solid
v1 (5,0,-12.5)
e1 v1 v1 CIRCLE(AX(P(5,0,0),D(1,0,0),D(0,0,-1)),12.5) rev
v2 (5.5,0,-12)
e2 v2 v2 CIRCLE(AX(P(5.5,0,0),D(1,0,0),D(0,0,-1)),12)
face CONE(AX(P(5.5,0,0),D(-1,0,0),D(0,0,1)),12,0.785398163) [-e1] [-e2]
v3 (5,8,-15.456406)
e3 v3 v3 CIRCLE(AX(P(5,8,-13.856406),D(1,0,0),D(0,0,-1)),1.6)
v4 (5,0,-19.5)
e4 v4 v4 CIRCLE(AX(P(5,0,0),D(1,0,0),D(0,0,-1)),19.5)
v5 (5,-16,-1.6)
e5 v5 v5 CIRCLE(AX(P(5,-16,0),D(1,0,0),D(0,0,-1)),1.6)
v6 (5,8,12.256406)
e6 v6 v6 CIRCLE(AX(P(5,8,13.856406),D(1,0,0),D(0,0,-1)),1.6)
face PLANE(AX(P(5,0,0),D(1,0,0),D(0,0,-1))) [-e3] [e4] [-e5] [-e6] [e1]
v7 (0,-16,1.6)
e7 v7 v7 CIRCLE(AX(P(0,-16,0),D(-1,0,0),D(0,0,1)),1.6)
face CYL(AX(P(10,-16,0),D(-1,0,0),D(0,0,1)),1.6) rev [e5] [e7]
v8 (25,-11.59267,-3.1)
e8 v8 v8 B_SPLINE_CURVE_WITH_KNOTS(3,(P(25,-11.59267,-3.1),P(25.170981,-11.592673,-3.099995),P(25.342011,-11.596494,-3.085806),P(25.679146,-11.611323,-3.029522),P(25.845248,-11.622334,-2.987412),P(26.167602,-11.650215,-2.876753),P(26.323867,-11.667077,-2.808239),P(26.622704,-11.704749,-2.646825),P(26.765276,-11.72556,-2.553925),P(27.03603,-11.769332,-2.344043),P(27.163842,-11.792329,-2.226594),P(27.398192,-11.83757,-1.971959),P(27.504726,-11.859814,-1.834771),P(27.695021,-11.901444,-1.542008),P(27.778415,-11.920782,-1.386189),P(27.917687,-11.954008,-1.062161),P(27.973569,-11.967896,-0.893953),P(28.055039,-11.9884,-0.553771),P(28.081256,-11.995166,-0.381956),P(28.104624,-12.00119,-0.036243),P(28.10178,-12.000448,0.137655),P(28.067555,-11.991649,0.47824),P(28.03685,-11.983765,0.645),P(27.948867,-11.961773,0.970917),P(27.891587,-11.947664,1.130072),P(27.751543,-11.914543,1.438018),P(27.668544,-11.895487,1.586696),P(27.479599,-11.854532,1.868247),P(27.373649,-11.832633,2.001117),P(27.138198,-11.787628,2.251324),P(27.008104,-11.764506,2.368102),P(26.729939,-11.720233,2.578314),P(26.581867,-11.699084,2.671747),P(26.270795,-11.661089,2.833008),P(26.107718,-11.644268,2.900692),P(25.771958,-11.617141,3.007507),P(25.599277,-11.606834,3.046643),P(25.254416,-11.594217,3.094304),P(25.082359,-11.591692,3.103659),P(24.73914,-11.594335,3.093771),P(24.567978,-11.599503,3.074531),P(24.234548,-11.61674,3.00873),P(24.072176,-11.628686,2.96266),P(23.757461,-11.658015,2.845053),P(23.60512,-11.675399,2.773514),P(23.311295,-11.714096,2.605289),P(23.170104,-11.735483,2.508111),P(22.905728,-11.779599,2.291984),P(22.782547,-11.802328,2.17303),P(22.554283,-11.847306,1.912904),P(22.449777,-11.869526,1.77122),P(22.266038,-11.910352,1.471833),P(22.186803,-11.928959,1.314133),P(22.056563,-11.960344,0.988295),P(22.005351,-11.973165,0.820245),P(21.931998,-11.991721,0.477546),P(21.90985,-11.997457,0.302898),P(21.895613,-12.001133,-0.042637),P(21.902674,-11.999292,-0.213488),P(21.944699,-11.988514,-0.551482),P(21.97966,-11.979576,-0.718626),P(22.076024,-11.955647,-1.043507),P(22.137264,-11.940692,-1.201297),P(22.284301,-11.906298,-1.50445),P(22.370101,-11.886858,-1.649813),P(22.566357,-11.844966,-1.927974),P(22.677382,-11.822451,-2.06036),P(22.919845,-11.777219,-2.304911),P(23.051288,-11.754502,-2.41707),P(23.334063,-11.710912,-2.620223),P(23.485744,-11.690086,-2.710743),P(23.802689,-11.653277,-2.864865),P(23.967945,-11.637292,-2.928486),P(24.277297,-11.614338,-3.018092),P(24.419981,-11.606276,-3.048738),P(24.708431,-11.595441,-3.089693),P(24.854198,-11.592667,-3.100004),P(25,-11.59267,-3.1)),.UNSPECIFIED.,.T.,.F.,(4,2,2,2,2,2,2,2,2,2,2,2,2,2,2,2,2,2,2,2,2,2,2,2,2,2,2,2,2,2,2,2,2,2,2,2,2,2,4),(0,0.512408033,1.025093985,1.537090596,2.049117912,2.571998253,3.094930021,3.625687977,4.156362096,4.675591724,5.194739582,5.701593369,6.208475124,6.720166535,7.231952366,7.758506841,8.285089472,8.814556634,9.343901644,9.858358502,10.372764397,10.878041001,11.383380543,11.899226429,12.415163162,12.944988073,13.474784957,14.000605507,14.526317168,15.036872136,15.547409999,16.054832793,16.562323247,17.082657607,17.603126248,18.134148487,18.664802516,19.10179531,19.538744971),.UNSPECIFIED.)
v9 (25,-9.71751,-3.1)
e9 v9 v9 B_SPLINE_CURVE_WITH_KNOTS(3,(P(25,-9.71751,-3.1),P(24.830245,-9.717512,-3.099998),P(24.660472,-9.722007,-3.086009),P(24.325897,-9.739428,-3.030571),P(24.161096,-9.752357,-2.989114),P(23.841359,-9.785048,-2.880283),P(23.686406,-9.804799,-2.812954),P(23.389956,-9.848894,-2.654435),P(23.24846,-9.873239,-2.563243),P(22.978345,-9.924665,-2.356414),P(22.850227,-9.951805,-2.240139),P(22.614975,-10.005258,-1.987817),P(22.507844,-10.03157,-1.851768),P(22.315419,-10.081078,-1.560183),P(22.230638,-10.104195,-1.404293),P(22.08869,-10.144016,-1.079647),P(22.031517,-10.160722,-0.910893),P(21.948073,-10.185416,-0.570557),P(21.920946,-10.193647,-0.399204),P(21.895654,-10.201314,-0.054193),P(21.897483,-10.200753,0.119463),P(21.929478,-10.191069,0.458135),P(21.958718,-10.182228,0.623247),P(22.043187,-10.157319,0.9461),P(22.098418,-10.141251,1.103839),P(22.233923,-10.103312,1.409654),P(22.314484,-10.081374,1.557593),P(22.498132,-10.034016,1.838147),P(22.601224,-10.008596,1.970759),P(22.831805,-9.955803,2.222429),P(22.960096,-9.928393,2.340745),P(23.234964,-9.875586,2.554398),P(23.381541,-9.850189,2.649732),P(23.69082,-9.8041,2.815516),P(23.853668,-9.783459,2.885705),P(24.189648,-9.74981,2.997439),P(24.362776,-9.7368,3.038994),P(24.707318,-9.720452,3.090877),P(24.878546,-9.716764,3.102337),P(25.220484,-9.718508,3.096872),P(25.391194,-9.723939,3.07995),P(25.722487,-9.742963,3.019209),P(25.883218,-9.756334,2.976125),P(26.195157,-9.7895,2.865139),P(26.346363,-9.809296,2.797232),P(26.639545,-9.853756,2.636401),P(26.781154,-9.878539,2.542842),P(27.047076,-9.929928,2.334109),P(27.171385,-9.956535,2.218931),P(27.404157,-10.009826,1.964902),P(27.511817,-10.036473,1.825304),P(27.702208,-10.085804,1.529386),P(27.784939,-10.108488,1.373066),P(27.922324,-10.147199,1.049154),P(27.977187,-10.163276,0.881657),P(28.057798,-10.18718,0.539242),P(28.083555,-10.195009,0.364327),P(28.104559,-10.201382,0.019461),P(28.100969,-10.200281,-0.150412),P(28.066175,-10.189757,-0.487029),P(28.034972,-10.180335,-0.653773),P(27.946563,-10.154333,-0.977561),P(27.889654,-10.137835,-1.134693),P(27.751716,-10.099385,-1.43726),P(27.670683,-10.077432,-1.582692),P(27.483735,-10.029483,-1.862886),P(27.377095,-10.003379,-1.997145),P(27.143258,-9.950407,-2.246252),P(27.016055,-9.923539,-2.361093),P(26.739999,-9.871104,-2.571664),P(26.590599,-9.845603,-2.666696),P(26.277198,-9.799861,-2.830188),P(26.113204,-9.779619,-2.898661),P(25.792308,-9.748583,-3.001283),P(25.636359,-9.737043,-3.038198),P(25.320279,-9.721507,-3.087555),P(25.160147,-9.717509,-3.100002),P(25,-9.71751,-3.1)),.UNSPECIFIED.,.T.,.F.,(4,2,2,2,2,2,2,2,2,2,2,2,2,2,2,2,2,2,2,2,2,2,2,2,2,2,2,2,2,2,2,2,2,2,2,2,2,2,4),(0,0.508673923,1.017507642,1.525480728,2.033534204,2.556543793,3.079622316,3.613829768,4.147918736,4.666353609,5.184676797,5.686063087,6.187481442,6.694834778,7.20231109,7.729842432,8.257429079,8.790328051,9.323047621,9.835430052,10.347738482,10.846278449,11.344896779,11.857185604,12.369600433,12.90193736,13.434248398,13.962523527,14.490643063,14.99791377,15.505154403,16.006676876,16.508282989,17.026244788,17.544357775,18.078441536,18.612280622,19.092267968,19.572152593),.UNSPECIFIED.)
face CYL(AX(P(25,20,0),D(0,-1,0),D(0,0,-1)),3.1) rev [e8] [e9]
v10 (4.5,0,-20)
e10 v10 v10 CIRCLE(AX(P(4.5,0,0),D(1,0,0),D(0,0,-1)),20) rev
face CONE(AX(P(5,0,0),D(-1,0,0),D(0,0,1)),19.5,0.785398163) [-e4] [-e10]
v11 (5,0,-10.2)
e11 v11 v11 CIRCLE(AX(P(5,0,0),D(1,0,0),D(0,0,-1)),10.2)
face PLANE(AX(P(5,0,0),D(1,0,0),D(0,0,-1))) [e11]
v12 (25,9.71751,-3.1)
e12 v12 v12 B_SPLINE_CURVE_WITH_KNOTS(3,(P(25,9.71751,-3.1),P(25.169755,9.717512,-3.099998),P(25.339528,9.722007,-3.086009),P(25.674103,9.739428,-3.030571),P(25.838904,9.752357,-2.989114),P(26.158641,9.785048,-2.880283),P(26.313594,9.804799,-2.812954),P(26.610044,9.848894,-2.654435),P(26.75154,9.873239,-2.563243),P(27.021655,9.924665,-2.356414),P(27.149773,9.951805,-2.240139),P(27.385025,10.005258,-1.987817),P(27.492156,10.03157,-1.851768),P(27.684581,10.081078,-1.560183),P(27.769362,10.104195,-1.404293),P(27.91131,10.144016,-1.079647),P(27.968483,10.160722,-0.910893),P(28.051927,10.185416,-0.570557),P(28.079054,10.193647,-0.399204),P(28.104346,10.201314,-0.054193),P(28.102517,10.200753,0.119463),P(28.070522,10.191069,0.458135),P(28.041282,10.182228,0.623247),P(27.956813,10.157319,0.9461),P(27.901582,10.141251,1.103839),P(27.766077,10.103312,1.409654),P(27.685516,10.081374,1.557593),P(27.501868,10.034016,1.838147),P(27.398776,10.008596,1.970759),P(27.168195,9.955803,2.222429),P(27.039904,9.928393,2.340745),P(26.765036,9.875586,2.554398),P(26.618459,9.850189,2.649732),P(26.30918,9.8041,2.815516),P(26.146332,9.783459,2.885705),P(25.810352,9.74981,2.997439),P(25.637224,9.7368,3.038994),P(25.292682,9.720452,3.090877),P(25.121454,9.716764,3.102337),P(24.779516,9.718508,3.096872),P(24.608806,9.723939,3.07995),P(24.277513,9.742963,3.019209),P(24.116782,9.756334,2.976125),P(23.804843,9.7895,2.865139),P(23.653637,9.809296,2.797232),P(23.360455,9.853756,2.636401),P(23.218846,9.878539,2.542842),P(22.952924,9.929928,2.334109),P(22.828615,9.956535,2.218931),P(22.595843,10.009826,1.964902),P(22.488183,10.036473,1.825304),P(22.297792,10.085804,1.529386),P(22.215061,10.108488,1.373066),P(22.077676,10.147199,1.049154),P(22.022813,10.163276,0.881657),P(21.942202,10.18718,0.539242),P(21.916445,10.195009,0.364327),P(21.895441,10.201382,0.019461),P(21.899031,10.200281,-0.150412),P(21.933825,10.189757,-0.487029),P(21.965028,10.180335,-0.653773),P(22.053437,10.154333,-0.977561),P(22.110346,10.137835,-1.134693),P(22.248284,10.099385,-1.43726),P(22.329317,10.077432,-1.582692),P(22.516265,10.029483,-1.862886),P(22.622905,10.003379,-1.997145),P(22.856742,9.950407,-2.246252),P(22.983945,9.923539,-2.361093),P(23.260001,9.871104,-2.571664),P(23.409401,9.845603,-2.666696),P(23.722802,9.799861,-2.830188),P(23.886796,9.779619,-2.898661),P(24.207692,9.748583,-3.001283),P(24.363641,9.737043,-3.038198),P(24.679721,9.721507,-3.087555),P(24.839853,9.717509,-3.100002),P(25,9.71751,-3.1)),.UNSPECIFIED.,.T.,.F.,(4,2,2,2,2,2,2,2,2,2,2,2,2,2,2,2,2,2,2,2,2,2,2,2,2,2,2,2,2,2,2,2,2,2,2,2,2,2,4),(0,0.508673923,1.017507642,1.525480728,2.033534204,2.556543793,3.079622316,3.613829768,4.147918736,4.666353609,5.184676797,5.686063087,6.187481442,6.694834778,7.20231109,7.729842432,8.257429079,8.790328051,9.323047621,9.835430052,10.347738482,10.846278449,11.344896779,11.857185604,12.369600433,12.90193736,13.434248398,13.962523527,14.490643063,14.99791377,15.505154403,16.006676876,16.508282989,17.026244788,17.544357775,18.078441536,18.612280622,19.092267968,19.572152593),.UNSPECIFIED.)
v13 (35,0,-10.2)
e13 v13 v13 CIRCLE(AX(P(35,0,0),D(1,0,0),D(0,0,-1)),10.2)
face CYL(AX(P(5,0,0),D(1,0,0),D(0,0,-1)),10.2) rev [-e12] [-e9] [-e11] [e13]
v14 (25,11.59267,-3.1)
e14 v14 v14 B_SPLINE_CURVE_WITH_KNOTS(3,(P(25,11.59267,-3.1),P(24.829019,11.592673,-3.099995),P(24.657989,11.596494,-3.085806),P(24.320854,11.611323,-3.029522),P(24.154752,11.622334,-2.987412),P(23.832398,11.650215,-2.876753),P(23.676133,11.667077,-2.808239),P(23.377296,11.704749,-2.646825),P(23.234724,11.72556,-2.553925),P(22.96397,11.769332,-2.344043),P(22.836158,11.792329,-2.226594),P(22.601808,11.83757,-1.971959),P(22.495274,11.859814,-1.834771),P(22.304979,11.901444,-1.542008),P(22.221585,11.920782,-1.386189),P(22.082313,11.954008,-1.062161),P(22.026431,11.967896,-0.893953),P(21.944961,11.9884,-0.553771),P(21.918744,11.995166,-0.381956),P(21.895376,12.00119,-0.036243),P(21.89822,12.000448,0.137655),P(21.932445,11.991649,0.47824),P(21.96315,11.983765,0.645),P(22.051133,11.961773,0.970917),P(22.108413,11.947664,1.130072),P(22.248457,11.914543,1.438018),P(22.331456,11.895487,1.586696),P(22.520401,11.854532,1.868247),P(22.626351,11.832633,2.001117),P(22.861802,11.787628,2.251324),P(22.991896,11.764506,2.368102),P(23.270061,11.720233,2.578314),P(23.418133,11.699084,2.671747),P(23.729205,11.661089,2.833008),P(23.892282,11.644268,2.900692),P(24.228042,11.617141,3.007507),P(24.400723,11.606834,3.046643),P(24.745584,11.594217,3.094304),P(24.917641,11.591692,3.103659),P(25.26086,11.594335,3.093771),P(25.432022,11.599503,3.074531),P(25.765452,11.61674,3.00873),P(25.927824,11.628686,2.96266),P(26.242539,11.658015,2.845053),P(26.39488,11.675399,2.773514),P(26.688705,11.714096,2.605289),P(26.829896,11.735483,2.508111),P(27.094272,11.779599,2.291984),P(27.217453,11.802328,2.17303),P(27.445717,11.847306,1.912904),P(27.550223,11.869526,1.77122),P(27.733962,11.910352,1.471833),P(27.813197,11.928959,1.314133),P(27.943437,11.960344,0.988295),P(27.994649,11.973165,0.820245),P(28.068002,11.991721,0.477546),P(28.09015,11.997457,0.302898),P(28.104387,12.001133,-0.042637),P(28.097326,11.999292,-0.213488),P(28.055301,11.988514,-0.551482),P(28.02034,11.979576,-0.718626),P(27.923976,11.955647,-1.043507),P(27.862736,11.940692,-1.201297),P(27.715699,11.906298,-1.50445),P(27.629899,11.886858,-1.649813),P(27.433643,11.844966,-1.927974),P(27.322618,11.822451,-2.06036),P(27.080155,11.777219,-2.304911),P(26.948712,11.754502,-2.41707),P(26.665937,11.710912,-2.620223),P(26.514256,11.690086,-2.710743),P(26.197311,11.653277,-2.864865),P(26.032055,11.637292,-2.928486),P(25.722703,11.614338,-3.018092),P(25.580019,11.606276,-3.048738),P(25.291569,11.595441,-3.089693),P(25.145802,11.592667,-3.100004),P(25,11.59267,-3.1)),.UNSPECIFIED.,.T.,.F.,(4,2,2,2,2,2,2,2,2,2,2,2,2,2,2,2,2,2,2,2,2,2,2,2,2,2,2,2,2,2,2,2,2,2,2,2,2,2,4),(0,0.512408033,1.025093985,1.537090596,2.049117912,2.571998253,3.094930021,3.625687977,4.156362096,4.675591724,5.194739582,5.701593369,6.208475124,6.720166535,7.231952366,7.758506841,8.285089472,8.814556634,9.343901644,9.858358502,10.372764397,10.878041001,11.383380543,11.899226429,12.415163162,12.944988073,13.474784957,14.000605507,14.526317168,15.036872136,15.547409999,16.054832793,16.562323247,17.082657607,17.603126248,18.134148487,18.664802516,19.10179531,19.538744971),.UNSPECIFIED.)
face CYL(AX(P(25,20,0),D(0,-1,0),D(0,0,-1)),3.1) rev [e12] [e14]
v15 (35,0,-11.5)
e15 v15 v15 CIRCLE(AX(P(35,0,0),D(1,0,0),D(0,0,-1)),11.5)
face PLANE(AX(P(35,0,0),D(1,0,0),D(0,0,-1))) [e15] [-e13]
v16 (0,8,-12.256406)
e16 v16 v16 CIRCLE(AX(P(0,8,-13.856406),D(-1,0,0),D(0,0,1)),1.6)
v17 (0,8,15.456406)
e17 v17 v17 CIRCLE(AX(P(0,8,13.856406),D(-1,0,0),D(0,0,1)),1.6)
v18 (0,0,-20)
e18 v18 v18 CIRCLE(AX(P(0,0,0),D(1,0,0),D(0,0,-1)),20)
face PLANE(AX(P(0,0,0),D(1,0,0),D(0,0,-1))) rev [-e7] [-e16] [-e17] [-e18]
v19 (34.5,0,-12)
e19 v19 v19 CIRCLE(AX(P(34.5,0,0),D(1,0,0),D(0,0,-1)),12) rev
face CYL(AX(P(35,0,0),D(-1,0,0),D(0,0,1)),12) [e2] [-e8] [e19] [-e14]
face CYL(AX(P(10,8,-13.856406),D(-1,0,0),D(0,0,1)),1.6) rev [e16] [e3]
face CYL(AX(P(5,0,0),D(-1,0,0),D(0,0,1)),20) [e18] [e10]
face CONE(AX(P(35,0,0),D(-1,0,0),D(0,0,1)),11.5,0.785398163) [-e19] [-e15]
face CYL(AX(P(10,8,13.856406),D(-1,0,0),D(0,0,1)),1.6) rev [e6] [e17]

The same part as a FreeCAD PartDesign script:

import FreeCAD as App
import Part
import Sketcher


def edges_at(feature, points):
    """Names of the edges that pass closest to the given points."""
    edges = feature.Shape.Edges
    near = lambda p: min(range(len(edges)), key=lambda i: edges[i].distToShape(Part.Vertex(*p))[0])
    return sorted({f"Edge{near(p) + 1}" for p in points})

doc = App.newDocument("Part")
body = doc.addObject("PartDesign::Body", "Body")

sketch1 = body.newObject("Sketcher::SketchObject", "Sketch")
sketch1.AttachmentSupport = (doc.getObject("YZ_Plane"), [""])
sketch1.MapMode = "FlatFace"
sketch1.addGeometry(Part.Circle(App.Vector(0, 0, 0), App.Vector(0, 0, 1), 20), False)
sketch1.addConstraint(Sketcher.Constraint("Coincident", 0, 3, -1, 1))
sketch1.addConstraint(Sketcher.Constraint("Diameter", 0, 40.0))
pad1 = body.newObject("PartDesign::Pad", "Pad")
pad1.Profile = sketch1
pad1.Length = 5

sketch2 = body.newObject("Sketcher::SketchObject", "Sketch001")
sketch2.AttachmentSupport = (doc.getObject("YZ_Plane"), [""])
sketch2.MapMode = "FlatFace"
sketch2.AttachmentOffset = App.Placement(App.Vector(0, 0, 5), App.Rotation())
sketch2.addGeometry(Part.Circle(App.Vector(0, 0, 0), App.Vector(0, 0, 1), 12), False)
sketch2.addConstraint(Sketcher.Constraint("Coincident", 0, 3, -1, 1))
sketch2.addConstraint(Sketcher.Constraint("Diameter", 0, 24.0))
pad2 = body.newObject("PartDesign::Pad", "Pad001")
pad2.Profile = sketch2
pad2.Length = 30

sketch3 = body.newObject("Sketcher::SketchObject", "Sketch002")
sketch3.AttachmentSupport = (doc.getObject("YZ_Plane"), [""])
sketch3.MapMode = "FlatFace"
sketch3.AttachmentOffset = App.Placement(App.Vector(0, 0, 35), App.Rotation())
sketch3.addGeometry(Part.Circle(App.Vector(0, 0, 0), App.Vector(0, 0, 1), 10.2), False)
sketch3.addConstraint(Sketcher.Constraint("Coincident", 0, 3, -1, 1))
sketch3.addConstraint(Sketcher.Constraint("Diameter", 0, 20.4))
pocket1 = body.newObject("PartDesign::Pocket", "Pocket")
pocket1.Profile = sketch3
pocket1.Length = 30
doc.recompute()

chamfer = body.newObject("PartDesign::Chamfer", "Chamfer")
chamfer.Base = (pocket1, edges_at(pocket1, [(35, 0, 12)]))
chamfer.Size = 0.5

sketch4 = body.newObject("Sketcher::SketchObject", "Sketch003")
sketch4.AttachmentSupport = (doc.getObject("XZ_Plane"), [""])
sketch4.MapMode = "FlatFace"
sketch4.addGeometry(Part.Circle(App.Vector(25, 0, 0), App.Vector(0, 0, 1), 3.1), False)
sketch4.addConstraint(Sketcher.Constraint("PointOnObject", 0, 3, -1))
sketch4.addConstraint(Sketcher.Constraint("Diameter", 0, 6.2))
sketch4.addConstraint(Sketcher.Constraint("DistanceX", -1, 1, 0, 3, 25.0))
pocket2 = body.newObject("PartDesign::Pocket", "Pocket001")
pocket2.Profile = sketch4
pocket2.Type = "ThroughAll"
pocket2.Midplane = True
doc.recompute()

chamfer2 = body.newObject("PartDesign::Chamfer", "Chamfer001")
chamfer2.Base = (pocket2, edges_at(pocket2, [(5, 0, 20)]))
chamfer2.Size = 0.5
doc.recompute()

chamfer3 = body.newObject("PartDesign::Chamfer", "Chamfer002")
chamfer3.Base = (chamfer2, edges_at(chamfer2, [(5, 0, 12)]))
chamfer3.Size = 0.5

sketch5 = body.newObject("Sketcher::SketchObject", "Sketch004")
sketch5.AttachmentSupport = (doc.getObject("YZ_Plane"), [""])
sketch5.MapMode = "FlatFace"
sketch5.addGeometry(Part.Circle(App.Vector(8, -13.856406, 0), App.Vector(0, 0, 1), 1.6), False)
sketch5.addGeometry(Part.Circle(App.Vector(8, 13.856406, 0), App.Vector(0, 0, 1), 1.6), False)
sketch5.addGeometry(Part.Circle(App.Vector(-16, 0, 0), App.Vector(0, 0, 1), 1.6), False)
sketch5.addConstraint(Sketcher.Constraint("Equal", 0, 1))
sketch5.addConstraint(Sketcher.Constraint("Equal", 1, 2))
sketch5.addConstraint(Sketcher.Constraint("Symmetric", 0, 3, 1, 3, -1))
sketch5.addConstraint(Sketcher.Constraint("PointOnObject", 2, 3, -1))
sketch5.addConstraint(Sketcher.Constraint("Diameter", 0, 3.2))
sketch5.addConstraint(Sketcher.Constraint("DistanceX", -1, 1, 0, 3, 8.0))
sketch5.addConstraint(Sketcher.Constraint("DistanceX", 2, 3, -1, 1, 16.0))
sketch5.addConstraint(Sketcher.Constraint("DistanceY", 0, 3, -1, 1, 13.856406))
pocket3 = body.newObject("PartDesign::Pocket", "Pocket002")
pocket3.Profile = sketch5
pocket3.Length = 10
pocket3.Reversed = True

doc.recompute()
